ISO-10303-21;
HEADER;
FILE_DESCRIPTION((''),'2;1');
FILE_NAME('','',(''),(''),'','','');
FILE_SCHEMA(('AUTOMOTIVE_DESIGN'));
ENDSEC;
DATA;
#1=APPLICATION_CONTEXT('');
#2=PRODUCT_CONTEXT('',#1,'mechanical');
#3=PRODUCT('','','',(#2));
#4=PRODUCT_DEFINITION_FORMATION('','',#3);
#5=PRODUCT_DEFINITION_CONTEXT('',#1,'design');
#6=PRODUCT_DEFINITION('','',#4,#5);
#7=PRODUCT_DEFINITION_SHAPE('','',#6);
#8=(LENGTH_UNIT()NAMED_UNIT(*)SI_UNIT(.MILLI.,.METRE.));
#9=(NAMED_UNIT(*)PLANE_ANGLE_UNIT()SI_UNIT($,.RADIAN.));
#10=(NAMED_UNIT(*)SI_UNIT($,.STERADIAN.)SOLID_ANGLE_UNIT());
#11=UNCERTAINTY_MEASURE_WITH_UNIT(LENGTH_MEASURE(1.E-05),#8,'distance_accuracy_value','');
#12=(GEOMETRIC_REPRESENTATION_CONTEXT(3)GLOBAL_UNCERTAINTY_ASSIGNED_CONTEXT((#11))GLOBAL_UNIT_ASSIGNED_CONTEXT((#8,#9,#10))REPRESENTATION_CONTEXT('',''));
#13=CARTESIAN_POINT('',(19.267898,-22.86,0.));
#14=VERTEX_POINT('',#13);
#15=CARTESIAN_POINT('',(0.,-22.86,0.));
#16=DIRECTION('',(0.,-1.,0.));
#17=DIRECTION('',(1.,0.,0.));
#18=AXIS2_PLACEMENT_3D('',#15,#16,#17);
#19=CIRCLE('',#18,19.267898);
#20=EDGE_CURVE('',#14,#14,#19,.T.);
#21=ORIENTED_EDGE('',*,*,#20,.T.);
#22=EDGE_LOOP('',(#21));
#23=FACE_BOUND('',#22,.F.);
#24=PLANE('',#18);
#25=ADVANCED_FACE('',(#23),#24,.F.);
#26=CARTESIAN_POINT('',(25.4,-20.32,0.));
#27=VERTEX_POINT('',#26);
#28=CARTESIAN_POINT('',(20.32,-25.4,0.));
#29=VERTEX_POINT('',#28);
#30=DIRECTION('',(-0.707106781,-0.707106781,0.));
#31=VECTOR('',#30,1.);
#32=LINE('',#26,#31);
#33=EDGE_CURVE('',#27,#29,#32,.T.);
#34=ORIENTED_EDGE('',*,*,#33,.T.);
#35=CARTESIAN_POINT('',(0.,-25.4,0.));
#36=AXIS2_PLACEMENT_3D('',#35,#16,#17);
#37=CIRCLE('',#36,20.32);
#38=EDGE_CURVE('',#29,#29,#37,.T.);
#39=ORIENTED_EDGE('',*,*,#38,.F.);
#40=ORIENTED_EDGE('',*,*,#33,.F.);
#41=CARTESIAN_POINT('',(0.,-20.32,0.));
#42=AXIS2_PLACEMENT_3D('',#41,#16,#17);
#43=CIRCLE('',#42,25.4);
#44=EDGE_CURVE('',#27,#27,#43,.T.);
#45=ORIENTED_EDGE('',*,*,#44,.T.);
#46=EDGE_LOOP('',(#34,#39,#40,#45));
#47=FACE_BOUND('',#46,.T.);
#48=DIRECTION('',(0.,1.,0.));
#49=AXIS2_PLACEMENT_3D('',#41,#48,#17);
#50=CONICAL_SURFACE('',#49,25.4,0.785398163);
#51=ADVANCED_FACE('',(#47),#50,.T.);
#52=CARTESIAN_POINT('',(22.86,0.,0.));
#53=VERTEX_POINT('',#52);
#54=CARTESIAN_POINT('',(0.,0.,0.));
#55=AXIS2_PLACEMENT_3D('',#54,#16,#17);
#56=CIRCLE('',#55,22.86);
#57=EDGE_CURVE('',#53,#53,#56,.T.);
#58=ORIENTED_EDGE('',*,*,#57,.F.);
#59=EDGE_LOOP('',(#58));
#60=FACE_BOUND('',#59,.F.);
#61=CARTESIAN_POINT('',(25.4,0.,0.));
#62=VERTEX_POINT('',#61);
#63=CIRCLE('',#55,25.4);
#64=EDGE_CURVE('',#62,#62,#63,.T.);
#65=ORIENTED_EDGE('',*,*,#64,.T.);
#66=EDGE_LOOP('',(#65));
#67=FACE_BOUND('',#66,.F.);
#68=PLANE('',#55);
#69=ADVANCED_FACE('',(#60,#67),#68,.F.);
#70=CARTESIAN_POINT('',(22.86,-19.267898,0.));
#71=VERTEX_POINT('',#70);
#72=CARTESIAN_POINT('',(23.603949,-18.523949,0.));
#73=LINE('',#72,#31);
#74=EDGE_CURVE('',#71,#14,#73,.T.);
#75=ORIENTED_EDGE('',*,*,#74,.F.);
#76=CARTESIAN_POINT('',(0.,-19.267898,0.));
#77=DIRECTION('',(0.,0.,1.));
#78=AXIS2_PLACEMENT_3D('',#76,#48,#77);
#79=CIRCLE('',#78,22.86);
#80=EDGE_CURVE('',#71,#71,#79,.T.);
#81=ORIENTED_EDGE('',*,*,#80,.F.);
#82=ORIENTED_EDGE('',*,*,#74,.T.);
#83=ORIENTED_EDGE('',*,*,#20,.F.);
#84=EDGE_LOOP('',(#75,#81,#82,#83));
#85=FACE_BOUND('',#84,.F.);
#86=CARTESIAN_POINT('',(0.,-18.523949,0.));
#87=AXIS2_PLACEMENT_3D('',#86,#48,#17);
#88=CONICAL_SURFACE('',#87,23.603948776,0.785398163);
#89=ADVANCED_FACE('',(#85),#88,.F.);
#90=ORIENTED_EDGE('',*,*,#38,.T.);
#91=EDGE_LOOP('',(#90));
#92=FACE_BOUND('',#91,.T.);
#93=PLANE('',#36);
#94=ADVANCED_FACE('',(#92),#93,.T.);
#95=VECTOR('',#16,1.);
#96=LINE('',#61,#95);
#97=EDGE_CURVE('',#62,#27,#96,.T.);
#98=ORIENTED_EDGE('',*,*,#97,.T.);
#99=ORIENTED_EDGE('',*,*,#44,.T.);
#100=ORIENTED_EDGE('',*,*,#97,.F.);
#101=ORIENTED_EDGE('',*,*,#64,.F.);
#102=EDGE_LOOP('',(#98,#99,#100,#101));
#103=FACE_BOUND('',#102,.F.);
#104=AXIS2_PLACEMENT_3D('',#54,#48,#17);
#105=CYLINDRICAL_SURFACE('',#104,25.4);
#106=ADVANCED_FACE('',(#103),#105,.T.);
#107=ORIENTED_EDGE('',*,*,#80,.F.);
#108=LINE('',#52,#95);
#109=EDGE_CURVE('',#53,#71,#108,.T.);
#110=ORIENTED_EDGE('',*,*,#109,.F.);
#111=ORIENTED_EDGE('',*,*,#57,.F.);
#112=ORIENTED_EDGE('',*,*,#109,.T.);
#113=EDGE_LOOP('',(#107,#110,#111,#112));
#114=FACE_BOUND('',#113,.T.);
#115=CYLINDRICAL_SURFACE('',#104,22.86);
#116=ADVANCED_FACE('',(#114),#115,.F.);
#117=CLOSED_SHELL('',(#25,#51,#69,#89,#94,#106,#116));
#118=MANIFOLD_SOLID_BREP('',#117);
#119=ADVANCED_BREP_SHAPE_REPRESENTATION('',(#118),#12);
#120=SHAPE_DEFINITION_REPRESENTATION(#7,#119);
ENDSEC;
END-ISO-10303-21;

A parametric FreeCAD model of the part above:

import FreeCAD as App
import Part
import Sketcher
Q = App.Units.Quantity


def edges_at(feature, points):
    """Names of the edges that pass closest to the given points."""
    edges = feature.Shape.Edges
    near = lambda p: min(range(len(edges)), key=lambda i: edges[i].distToShape(Part.Vertex(*p))[0])
    return sorted({f"Edge{near(p) + 1}" for p in points})


def faces_at(feature, points):
    """Names of the faces that lie closest to the given points."""
    faces = feature.Shape.Faces
    near = lambda p: min(range(len(faces)), key=lambda i: faces[i].distToShape(Part.Vertex(*p))[0])
    return sorted({f"Face{near(p) + 1}" for p in points})

doc = App.newDocument("Part")
body = doc.addObject("PartDesign::Body", "Body")

sketch1 = doc.addObject("Sketcher::SketchObject", "Sketch")
body.addObject(sketch1)
sketch1.AttachmentSupport = (doc.XZ_Plane, [""])
sketch1.MapMode = "FlatFace"
sketch1.addGeometry(Part.Circle(App.Vector(0, 0, 0), App.Vector(0, 0, 1), 25), False)
sketch1.addConstraint(Sketcher.Constraint("Coincident", 0, 3, -1, 1))
sketch1.addConstraint(Sketcher.Constraint("Diameter", 0, Q("2 in")))
pad1 = doc.addObject("PartDesign::Pad", "Pad")
body.addObject(pad1)
pad1.Profile = sketch1
pad1.Length = Q("1 in")
doc.recompute()

chamfer = doc.addObject("PartDesign::Chamfer", "Chamfer")
body.addObject(chamfer)
chamfer.Base = (pad1, edges_at(pad1, [(-25.4, -25.4, 0)]))
chamfer.Size = Q("0.2 in")
doc.recompute()

thickness = doc.addObject("PartDesign::Thickness", "Thickness")
body.addObject(thickness)
thickness.Base = (chamfer, faces_at(chamfer, [(0, 0, 0)]))
thickness.Value = Q("0.1 in")
thickness.Reversed = True
thickness.Join = "Arc"

doc.recompute()
